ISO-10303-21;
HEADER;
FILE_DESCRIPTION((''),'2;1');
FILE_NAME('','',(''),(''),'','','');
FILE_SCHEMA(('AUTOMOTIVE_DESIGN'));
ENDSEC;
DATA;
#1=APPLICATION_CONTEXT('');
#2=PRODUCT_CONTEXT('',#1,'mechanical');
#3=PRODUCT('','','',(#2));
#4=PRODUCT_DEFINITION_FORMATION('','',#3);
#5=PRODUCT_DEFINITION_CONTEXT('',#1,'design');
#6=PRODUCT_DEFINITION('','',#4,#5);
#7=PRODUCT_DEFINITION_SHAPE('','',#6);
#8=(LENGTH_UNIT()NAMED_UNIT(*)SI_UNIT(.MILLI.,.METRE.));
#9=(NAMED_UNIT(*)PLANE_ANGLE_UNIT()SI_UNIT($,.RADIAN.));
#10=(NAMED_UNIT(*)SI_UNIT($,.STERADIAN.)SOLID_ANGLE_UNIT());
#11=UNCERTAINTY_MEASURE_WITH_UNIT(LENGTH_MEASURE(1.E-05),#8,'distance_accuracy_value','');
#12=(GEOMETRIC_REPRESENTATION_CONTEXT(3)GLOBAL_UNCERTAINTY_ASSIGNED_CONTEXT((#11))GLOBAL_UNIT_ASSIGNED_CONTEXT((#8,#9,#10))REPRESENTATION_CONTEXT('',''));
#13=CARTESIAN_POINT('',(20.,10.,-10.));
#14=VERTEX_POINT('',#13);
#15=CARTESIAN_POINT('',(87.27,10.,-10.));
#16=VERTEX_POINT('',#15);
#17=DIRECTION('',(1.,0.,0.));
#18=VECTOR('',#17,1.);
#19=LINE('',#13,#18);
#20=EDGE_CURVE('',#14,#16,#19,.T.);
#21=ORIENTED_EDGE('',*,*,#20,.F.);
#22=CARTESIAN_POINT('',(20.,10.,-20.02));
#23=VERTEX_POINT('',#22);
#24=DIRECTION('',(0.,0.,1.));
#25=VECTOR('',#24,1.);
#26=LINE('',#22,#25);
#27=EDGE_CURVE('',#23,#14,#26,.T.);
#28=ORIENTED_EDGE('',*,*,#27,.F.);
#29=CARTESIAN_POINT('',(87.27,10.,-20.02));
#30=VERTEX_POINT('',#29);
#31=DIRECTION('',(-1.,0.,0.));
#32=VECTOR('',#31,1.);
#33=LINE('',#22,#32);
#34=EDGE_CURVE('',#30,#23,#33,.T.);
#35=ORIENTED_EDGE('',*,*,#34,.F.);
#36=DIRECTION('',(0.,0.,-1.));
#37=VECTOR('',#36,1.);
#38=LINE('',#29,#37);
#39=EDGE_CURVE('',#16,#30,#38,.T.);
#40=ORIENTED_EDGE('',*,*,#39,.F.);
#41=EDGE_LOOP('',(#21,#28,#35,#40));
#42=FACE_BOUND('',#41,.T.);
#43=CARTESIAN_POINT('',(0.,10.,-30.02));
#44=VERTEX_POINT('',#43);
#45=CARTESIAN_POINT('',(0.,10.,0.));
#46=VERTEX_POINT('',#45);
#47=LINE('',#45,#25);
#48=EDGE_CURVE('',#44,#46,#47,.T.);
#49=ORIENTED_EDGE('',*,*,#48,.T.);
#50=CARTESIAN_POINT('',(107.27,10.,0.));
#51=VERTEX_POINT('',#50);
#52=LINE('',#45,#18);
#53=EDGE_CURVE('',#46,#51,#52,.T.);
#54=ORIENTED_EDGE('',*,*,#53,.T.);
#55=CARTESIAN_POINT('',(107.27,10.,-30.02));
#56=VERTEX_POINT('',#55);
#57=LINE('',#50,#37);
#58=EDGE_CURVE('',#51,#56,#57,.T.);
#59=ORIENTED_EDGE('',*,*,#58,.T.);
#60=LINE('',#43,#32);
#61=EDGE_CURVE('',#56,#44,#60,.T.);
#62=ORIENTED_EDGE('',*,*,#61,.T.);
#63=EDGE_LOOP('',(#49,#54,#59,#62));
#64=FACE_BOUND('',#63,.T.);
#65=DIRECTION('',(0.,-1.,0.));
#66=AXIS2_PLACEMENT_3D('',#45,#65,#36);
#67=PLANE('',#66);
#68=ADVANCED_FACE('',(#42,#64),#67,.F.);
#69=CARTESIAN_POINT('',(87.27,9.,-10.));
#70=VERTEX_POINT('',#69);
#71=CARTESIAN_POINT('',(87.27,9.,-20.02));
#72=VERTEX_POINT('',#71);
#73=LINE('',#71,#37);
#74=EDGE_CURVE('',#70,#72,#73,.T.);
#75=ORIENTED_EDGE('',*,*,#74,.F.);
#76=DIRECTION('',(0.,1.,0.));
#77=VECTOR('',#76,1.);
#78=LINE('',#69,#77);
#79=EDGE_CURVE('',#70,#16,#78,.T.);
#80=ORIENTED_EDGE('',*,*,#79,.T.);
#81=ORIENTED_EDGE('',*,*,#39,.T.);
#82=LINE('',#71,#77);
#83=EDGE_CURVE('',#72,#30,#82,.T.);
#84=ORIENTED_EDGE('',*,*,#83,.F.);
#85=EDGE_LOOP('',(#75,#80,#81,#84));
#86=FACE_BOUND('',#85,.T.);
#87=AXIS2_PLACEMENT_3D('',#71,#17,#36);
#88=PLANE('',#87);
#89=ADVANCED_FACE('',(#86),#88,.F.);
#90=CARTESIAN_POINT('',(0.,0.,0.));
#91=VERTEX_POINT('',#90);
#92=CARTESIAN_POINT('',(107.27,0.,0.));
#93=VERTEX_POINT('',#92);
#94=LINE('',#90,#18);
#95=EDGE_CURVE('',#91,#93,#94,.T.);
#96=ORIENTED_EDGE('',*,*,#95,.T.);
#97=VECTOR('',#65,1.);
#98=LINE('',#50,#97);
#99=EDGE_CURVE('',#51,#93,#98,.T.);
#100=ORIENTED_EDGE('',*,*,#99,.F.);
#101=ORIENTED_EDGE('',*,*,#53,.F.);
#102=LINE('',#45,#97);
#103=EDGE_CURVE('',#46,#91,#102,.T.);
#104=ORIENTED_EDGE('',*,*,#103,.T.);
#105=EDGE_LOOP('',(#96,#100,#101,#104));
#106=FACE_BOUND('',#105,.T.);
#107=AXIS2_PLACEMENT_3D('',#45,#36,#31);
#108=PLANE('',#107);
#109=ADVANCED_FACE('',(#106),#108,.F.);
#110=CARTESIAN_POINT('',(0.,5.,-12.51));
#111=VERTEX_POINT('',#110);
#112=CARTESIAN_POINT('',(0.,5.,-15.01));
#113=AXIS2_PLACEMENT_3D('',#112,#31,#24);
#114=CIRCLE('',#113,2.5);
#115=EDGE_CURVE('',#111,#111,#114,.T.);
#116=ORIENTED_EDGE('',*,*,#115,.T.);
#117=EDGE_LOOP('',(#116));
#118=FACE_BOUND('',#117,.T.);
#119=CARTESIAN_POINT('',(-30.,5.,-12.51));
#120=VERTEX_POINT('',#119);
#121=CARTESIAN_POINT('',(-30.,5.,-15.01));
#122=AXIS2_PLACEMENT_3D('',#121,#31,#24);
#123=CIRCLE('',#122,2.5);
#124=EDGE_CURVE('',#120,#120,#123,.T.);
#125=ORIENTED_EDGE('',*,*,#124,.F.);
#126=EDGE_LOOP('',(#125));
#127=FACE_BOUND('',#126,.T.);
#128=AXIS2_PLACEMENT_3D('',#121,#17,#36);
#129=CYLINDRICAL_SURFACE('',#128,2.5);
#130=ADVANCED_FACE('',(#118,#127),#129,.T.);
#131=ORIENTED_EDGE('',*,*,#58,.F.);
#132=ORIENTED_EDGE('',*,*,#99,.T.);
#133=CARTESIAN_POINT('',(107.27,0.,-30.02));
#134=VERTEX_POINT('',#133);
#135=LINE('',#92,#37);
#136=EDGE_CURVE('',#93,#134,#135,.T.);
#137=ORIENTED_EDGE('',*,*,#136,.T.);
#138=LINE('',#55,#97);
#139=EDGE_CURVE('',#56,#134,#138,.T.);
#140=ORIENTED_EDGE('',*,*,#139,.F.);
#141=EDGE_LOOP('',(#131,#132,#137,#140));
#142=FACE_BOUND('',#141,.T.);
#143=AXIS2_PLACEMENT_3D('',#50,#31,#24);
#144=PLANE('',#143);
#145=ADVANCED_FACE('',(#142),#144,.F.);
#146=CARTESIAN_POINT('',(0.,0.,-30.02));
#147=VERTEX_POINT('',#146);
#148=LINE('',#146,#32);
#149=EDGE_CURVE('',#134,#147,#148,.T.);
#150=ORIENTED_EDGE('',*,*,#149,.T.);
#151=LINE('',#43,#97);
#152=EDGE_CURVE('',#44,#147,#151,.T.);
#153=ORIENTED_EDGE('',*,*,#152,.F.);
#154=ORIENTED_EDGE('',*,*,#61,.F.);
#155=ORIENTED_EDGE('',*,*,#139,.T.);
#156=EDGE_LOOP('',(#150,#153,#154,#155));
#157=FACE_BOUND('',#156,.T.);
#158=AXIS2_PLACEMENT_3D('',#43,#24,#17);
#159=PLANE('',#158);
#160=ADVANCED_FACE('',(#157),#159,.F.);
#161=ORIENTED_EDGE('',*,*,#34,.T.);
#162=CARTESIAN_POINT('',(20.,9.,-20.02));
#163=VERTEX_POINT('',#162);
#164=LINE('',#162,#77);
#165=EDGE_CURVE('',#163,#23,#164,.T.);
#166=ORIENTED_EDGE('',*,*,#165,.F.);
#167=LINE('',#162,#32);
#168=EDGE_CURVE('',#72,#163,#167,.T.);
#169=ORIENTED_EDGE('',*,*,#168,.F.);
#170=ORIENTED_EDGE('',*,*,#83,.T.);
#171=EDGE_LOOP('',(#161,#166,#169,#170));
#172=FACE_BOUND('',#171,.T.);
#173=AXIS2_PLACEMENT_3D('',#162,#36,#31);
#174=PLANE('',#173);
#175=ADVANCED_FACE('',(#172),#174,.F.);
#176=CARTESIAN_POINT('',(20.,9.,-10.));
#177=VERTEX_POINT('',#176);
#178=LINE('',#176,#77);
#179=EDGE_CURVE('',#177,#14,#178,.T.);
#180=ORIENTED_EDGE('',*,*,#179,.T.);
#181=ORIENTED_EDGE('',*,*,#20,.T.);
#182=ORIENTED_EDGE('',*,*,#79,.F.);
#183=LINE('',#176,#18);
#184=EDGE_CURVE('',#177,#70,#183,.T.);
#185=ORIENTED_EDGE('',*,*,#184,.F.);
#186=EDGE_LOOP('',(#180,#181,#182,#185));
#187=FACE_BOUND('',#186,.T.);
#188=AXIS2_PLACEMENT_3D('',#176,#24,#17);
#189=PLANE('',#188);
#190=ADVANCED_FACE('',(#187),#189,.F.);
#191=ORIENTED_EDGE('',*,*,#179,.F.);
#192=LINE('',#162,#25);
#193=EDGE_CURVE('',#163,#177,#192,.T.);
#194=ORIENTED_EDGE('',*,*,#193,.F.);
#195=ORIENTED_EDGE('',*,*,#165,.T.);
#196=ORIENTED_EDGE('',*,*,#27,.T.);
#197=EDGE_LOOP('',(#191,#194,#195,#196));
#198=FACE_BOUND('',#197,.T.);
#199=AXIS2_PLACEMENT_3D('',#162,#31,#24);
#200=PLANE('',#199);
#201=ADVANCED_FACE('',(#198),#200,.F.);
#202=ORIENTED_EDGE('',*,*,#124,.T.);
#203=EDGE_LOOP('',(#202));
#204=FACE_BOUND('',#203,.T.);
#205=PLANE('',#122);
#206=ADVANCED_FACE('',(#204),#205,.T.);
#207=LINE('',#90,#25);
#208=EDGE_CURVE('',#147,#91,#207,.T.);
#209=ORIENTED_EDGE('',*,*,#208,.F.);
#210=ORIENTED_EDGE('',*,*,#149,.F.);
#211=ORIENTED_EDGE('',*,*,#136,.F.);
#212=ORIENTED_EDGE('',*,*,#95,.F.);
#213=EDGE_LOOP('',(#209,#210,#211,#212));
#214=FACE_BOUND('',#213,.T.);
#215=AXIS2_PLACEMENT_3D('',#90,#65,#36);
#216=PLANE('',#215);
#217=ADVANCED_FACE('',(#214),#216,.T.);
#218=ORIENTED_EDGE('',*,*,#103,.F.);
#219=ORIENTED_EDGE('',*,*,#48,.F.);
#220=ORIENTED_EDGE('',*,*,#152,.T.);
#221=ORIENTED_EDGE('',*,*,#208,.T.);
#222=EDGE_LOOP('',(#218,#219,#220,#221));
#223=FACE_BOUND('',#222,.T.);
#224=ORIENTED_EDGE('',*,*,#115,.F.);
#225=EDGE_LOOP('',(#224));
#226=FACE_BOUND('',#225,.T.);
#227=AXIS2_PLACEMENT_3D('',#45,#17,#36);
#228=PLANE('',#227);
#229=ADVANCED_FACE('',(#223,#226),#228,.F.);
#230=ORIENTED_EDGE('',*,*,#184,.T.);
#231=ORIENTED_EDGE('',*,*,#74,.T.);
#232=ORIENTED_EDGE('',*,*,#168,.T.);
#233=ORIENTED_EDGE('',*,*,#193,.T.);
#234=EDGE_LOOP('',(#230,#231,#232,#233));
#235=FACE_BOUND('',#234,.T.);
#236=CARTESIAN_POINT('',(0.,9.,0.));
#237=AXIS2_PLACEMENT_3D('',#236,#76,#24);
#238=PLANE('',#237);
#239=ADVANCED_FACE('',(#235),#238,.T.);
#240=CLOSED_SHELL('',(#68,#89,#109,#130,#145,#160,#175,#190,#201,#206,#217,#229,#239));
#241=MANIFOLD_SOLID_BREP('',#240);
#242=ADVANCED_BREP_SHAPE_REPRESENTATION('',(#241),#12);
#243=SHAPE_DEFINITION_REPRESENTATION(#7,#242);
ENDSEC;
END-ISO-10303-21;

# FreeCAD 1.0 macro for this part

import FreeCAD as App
import Part
import Sketcher

V = App.Vector


def add_polygon(sketch, points):
    """Adds a closed chain of lines whose ends are joined by coincident constraints."""
    first, n = sketch.GeometryCount, len(points)
    for a, b in zip(points, points[1:] + points[:1]):
        sketch.addGeometry(Part.LineSegment(App.Vector(*a, 0), App.Vector(*b, 0)), False)
    for i in range(n):
        sketch.addConstraint(Sketcher.Constraint("Coincident", first + i, 2, first + (i + 1) % n, 1))

doc = App.newDocument("Part")
body = doc.addObject("PartDesign::Body", "Body")

# Sketch on XZ plane
sketch1 = doc.addObject("Sketcher::SketchObject", "Sketch")
body.addObject(sketch1)
sketch1.AttachmentSupport = (doc.XZ_Plane, [""])
sketch1.MapMode = "FlatFace"
add_polygon(sketch1, [(0, -30), (0, 0), (107, 0), (107, -30)])  # lines 0-3
sketch1.addConstraint(Sketcher.Constraint("Vertical", 0))
sketch1.addConstraint(Sketcher.Constraint("Horizontal", 1))
sketch1.addConstraint(Sketcher.Constraint("Vertical", 2))
sketch1.addConstraint(Sketcher.Constraint("Horizontal", 3))
sketch1.addConstraint(Sketcher.Constraint("Coincident", 0, 2, -1, 1))
sketch1.addConstraint(Sketcher.Constraint("DistanceX", 1, 1, 1, 2, 107.27))
sketch1.addConstraint(Sketcher.Constraint("DistanceY", 0, 1, 0, 2, 30.02))
pad1 = doc.addObject("PartDesign::Pad", "Pad")
body.addObject(pad1)
pad1.Profile = sketch1
pad1.Length = 10
pad1.Reversed = True

# Sketch on YZ plane
sketch2 = doc.addObject("Sketcher::SketchObject", "Sketch001")
body.addObject(sketch2)
sketch2.AttachmentSupport = (doc.YZ_Plane, [""])
sketch2.MapMode = "FlatFace"
sketch2.addGeometry(Part.Circle(V(5, -15, 0), V(0, 0, 1), 2.5), False)
sketch2.addConstraint(Sketcher.Constraint("Diameter", 0, 5.0))
sketch2.addConstraint(Sketcher.Constraint("DistanceX", -1, 1, 0, 3, 5.0))
sketch2.addConstraint(Sketcher.Constraint("DistanceY", 0, 3, -1, 1, 15.01))
pad2 = doc.addObject("PartDesign::Pad", "Pad001")
body.addObject(pad2)
pad2.Profile = sketch2
pad2.Length = 30
pad2.Reversed = True

# Sketch on XZ plane
sketch3 = doc.addObject("Sketcher::SketchObject", "Sketch002")
body.addObject(sketch3)
sketch3.AttachmentSupport = (doc.XZ_Plane, [""])
sketch3.MapMode = "FlatFace"
sketch3.AttachmentOffset = App.Placement(V(0, 0, -10), App.Rotation())
add_polygon(sketch3, [(20, -20), (20, -10), (87, -10), (87, -20)])  # lines 0-3
sketch3.addConstraint(Sketcher.Constraint("Vertical", 0))
sketch3.addConstraint(Sketcher.Constraint("Horizontal", 1))
sketch3.addConstraint(Sketcher.Constraint("Vertical", 2))
sketch3.addConstraint(Sketcher.Constraint("Horizontal", 3))
sketch3.addConstraint(Sketcher.Constraint("DistanceX", -1, 1, 0, 2, 20.0))
sketch3.addConstraint(Sketcher.Constraint("DistanceY", 0, 2, -1, 1, 10.0))
sketch3.addConstraint(Sketcher.Constraint("DistanceX", 1, 1, 1, 2, 67.27))
sketch3.addConstraint(Sketcher.Constraint("DistanceY", 0, 1, 0, 2, 10.02))
pocket1 = doc.addObject("PartDesign::Pocket", "Pocket")
body.addObject(pocket1)
pocket1.Profile = sketch3
pocket1.Length = 1
pocket1.Reversed = True

doc.recompute()
